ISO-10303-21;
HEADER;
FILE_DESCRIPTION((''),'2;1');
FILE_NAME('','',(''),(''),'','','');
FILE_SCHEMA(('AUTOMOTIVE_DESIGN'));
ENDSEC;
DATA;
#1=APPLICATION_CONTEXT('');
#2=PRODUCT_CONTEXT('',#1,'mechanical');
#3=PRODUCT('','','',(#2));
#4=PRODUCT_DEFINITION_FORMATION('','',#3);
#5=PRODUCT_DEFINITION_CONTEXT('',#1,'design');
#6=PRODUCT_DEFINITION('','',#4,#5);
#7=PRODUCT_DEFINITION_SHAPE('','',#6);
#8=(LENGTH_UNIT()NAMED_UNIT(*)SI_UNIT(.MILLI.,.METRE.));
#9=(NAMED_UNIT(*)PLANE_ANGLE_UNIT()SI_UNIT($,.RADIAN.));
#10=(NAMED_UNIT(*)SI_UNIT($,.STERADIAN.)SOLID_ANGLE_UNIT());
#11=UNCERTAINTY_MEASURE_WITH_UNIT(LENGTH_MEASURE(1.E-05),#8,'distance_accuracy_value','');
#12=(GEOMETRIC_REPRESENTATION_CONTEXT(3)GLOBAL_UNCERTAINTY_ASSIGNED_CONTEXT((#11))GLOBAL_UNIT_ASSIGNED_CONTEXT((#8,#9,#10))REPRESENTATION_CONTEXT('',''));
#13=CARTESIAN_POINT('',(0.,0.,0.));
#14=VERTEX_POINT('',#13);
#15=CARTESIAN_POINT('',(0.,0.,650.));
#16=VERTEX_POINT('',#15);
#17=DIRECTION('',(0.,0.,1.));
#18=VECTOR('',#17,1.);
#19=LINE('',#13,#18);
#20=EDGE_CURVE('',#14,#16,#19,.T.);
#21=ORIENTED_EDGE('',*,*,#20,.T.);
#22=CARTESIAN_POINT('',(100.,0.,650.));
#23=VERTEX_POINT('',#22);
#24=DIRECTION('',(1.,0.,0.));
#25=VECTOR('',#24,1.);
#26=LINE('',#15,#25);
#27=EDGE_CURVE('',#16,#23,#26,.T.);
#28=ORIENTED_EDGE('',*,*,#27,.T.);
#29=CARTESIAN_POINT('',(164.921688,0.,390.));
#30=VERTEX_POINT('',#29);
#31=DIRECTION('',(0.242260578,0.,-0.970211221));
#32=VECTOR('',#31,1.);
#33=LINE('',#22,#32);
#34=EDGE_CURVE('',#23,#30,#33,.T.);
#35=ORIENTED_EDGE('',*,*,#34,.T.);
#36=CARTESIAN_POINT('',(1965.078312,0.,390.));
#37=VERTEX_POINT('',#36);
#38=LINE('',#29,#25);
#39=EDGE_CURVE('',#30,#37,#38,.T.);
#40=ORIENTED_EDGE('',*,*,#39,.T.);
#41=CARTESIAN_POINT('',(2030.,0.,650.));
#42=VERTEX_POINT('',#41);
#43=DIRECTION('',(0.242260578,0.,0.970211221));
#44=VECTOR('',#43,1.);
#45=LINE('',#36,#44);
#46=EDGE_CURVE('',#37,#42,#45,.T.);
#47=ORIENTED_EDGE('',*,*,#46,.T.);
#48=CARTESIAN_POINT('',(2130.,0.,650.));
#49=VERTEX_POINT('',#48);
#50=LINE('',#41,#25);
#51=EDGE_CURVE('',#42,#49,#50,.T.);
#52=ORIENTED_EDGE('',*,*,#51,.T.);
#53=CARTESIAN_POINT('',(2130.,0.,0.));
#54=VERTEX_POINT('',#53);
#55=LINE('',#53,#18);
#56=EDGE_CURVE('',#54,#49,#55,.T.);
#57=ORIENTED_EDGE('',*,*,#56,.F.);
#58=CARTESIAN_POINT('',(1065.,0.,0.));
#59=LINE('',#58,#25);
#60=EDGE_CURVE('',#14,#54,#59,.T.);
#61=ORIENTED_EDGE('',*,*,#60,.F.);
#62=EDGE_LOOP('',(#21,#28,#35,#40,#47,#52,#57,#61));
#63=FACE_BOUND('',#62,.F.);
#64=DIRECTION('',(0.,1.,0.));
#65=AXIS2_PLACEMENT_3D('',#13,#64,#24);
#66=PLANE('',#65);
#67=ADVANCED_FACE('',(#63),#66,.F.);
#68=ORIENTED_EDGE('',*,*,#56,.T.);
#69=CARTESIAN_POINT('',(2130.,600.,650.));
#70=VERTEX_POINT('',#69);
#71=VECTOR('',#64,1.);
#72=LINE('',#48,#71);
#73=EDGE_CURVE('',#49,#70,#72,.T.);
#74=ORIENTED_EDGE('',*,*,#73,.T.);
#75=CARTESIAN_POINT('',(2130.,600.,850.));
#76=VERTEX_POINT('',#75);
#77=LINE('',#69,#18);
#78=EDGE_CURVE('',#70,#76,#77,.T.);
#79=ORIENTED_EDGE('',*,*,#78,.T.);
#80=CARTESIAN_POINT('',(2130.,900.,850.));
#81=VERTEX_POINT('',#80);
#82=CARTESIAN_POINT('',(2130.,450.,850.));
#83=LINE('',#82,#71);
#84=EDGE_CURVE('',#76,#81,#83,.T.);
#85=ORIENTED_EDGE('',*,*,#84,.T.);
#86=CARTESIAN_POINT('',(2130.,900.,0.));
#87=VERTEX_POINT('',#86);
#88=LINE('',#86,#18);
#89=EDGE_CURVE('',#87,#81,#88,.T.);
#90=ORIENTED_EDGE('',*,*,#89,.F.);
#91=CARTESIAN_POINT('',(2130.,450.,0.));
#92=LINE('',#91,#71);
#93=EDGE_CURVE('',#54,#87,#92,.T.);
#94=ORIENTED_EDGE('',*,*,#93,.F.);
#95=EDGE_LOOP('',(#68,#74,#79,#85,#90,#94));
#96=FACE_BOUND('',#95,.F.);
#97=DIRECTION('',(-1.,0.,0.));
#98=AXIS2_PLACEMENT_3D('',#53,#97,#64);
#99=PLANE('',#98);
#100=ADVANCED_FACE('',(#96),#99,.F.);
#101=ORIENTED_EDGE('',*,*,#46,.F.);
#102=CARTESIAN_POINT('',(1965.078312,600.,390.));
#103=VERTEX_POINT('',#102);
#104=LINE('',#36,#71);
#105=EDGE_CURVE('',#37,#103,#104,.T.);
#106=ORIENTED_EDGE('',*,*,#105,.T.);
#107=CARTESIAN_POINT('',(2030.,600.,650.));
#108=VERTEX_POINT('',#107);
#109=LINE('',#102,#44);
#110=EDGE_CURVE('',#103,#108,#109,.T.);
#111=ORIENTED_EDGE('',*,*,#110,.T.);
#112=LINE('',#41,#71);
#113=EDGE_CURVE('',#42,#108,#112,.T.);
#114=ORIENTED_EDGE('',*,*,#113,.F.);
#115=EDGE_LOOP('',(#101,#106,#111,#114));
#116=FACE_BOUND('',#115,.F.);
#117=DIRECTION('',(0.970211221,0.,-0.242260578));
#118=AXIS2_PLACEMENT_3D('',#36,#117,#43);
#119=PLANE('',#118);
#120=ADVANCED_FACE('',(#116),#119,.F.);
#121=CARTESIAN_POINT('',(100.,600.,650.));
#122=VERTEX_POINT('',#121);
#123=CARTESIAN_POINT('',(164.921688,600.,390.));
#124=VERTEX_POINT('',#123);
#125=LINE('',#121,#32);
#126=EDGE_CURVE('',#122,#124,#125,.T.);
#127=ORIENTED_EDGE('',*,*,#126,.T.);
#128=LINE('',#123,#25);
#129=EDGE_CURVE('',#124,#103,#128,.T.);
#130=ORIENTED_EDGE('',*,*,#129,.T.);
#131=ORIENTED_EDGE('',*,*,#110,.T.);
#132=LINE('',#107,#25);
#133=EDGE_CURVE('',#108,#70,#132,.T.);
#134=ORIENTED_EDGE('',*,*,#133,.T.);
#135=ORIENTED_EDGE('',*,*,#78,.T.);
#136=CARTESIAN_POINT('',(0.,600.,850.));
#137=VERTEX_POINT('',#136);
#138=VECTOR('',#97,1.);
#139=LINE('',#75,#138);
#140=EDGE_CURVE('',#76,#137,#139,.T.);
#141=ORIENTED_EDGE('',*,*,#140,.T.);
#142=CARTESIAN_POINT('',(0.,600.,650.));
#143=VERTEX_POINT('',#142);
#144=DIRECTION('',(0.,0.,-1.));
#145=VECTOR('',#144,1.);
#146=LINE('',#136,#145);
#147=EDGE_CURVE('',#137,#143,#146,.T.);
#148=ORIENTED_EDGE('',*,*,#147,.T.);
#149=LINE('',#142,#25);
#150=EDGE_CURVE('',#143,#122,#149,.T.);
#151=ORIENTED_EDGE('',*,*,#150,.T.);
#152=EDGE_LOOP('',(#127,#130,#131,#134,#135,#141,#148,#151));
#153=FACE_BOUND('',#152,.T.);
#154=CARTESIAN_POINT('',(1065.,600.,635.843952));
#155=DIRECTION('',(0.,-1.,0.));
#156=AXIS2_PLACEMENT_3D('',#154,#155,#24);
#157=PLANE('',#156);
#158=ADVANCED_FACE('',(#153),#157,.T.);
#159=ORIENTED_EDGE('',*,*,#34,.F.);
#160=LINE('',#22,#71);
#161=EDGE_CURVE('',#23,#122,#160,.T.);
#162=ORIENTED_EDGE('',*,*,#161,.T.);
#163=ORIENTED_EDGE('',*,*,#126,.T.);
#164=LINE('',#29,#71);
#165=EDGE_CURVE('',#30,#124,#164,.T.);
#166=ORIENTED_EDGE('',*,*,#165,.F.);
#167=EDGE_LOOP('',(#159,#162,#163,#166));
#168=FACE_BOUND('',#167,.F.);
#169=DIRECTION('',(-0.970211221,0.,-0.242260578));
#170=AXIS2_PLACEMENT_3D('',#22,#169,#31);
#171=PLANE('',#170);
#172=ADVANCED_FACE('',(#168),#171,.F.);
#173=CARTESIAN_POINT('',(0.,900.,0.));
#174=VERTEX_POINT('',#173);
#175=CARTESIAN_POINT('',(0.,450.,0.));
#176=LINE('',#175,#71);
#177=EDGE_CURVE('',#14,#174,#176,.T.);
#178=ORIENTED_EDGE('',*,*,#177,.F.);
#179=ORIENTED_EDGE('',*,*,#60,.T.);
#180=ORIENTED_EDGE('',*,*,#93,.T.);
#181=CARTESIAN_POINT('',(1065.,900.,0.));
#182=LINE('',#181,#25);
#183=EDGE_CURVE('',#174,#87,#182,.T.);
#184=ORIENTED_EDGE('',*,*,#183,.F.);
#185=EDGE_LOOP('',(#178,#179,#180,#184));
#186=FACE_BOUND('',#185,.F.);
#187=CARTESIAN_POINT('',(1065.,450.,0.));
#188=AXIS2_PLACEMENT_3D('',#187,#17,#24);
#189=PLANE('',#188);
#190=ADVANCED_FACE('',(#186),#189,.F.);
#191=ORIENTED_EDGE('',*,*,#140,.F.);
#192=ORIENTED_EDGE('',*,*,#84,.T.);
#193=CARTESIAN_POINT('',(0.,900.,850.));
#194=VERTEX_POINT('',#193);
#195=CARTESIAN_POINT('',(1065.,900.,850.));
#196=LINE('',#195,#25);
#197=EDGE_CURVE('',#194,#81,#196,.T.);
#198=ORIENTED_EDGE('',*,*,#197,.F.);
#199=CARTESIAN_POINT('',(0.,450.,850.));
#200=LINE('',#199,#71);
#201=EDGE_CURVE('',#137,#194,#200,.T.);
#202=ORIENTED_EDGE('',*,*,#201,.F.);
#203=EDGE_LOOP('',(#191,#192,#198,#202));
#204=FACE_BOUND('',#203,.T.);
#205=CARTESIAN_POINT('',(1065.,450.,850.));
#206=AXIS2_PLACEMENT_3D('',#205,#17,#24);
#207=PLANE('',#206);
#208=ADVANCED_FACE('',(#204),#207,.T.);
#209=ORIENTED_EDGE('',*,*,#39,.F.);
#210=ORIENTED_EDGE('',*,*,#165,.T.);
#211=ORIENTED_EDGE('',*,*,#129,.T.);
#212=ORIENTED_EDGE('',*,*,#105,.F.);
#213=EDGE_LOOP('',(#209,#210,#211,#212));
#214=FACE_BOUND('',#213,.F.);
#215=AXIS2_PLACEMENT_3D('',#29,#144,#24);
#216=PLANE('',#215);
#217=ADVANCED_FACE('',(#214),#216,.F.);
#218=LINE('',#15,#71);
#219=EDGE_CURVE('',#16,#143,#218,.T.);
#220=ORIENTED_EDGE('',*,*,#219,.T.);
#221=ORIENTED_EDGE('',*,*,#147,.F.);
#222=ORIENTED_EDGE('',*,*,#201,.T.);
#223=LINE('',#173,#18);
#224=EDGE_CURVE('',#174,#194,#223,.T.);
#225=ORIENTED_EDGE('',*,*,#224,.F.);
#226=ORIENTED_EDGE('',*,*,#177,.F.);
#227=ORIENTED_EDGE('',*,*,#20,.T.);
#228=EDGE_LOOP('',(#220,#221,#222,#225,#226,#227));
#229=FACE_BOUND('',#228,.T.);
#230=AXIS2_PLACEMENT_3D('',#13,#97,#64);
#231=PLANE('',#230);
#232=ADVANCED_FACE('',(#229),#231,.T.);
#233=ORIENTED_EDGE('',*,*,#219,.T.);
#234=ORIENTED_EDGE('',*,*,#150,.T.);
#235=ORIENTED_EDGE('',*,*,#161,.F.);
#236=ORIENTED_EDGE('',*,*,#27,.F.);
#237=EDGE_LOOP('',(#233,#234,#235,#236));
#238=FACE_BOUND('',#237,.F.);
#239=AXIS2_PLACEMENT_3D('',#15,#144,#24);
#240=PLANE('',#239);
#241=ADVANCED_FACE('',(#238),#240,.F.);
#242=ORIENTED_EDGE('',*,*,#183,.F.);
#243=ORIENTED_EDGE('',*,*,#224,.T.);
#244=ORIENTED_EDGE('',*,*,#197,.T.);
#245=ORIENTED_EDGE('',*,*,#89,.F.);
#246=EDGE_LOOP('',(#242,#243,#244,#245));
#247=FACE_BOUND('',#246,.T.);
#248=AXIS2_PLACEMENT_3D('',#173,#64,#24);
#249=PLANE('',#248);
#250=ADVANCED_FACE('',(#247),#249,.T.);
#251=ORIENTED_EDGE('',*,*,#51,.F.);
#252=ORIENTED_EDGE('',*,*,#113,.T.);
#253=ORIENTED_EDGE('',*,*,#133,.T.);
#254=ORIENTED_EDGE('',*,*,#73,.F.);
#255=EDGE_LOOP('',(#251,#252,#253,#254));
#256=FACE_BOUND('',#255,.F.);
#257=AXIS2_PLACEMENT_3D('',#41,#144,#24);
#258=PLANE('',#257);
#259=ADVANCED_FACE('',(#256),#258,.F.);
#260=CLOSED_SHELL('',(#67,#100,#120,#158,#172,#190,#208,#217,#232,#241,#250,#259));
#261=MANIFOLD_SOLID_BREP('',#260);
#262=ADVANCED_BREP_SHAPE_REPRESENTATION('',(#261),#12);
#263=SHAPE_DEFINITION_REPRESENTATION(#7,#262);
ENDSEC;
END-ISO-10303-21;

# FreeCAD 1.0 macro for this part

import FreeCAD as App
import Part
import Sketcher

V = App.Vector
Q = App.Units.Quantity


def add_polygon(sketch, points):
    """Adds a closed chain of lines whose ends are joined by coincident constraints."""
    first, n = sketch.GeometryCount, len(points)
    for a, b in zip(points, points[1:] + points[:1]):
        sketch.addGeometry(Part.LineSegment(App.Vector(*a, 0), App.Vector(*b, 0)), False)
    for i in range(n):
        sketch.addConstraint(Sketcher.Constraint("Coincident", first + i, 2, first + (i + 1) % n, 1))

doc = App.newDocument("Part")
body = doc.addObject("PartDesign::Body", "Body")

sketch1 = doc.addObject("Sketcher::SketchObject", "Sketch")
body.addObject(sketch1)
sketch1.AttachmentSupport = (doc.XY_Plane, [""])
sketch1.MapMode = "FlatFace"
add_polygon(sketch1, [(0, 900), (0, 0), (2130, 0), (2130, 900)])
sketch1.addConstraint(Sketcher.Constraint("Vertical", 0))
sketch1.addConstraint(Sketcher.Constraint("Horizontal", 1))
sketch1.addConstraint(Sketcher.Constraint("Vertical", 2))
sketch1.addConstraint(Sketcher.Constraint("Horizontal", 3))
sketch1.addConstraint(Sketcher.Constraint("Coincident", 0, 2, -1, 1))
sketch1.addConstraint(Sketcher.Constraint("DistanceX", 1, 1, 1, 2, Q("2130 mm")))
sketch1.addConstraint(Sketcher.Constraint("DistanceY", 0, 2, 0, 1, Q("900 mm")))
pad1 = doc.addObject("PartDesign::Pad", "Pad")
body.addObject(pad1)
pad1.Profile = sketch1
pad1.Length = 850

sketch2 = doc.addObject("Sketcher::SketchObject", "Sketch001")
body.addObject(sketch2)
sketch2.AttachmentSupport = (doc.XZ_Plane, [""])
sketch2.MapMode = "FlatFace"
add_polygon(sketch2, [(0, 650), (100, 650), (165, 390), (1965, 390), (2030, 650), (2130, 650), (2130, 850), (0, 850)])
sketch2.addConstraint(Sketcher.Constraint("Horizontal", 0))
sketch2.addConstraint(Sketcher.Constraint("Horizontal", 2))
sketch2.addConstraint(Sketcher.Constraint("Horizontal", 4))
sketch2.addConstraint(Sketcher.Constraint("Vertical", 5))
sketch2.addConstraint(Sketcher.Constraint("Horizontal", 6))
sketch2.addConstraint(Sketcher.Constraint("Vertical", 7))
sketch2.addConstraint(Sketcher.Constraint("PointOnObject", 6, 2, -2))
sketch2.addConstraint(Sketcher.Constraint("Horizontal", 0, 2, 3, 2))
sketch2.addConstraint(Sketcher.Constraint("Equal", 0, 4))
sketch2.addConstraint(Sketcher.Constraint("Equal", 1, 3))
sketch2.addConstraint(Sketcher.Constraint("DistanceX", 0, 1, 0, 2, Q("100 mm")))
sketch2.addConstraint(Sketcher.Constraint("DistanceX", 6, 2, 6, 1, Q("2130 mm")))
sketch2.addConstraint(Sketcher.Constraint("DistanceY", 5, 1, 5, 2, Q("200 mm")))
sketch2.addConstraint(Sketcher.Constraint("DistanceY", -1, 1, 0, 2, Q("650 mm")))
sketch2.addConstraint(Sketcher.Constraint("DistanceY", -1, 1, 1, 2, Q("390 mm")))
sketch2.addConstraint(Sketcher.Constraint("Angle", 1, Q("-75.98 deg")))
pocket1 = doc.addObject("PartDesign::Pocket", "Pocket")
body.addObject(pocket1)
pocket1.Profile = sketch2
pocket1.Length = 600

doc.recompute()
